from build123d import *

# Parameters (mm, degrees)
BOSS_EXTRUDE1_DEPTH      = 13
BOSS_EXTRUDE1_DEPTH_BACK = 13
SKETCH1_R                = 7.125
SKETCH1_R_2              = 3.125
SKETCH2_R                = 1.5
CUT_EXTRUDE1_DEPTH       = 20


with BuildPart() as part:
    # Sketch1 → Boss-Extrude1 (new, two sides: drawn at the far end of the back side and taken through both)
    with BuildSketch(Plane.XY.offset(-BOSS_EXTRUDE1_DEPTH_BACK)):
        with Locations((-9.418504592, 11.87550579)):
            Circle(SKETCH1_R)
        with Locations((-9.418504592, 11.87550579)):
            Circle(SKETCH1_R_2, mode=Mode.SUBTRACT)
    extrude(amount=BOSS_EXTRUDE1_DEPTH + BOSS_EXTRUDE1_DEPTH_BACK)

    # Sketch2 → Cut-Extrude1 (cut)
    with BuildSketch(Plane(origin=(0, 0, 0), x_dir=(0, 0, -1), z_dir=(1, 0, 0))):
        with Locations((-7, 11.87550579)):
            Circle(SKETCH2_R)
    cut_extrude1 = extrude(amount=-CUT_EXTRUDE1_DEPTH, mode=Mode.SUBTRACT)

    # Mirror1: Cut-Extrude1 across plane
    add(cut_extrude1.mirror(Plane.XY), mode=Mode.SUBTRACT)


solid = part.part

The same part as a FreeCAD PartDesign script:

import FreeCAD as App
import Part
import Sketcher

doc = App.newDocument("Part")
body = doc.addObject("PartDesign::Body", "Body")

sketch1 = body.newObject("Sketcher::SketchObject", "Sketch")
sketch1.AttachmentSupport = (doc.getObject("XY_Plane"), [""])
sketch1.MapMode = "FlatFace"
sketch1.addGeometry([
    Part.Circle(App.Vector(-9.418505, 11.875506, 0), App.Vector(0, 0, 1), 7.125),
    Part.Circle(App.Vector(-9.418505, 11.875506, 0), App.Vector(0, 0, 1), 3.125),
], False)
sketch1.addConstraint([
    Sketcher.Constraint("Coincident", 1, 3, 0, 3),
    Sketcher.Constraint("Diameter", 0, 14.25),
    Sketcher.Constraint("Diameter", 1, 6.25),
    Sketcher.Constraint("DistanceX", 0, 3, -1, 1, 9.418505),
    Sketcher.Constraint("DistanceY", -1, 1, 0, 3, 11.875506),
])
pad1 = body.newObject("PartDesign::Pad", "Pad")
pad1.Profile = sketch1
pad1.Type = "TwoLengths"
pad1.Length = 13
pad1.Length2 = 13

sketch2 = body.newObject("Sketcher::SketchObject", "Sketch001")
sketch2.AttachmentSupport = (doc.getObject("YZ_Plane"), [""])
sketch2.MapMode = "FlatFace"
sketch2.addGeometry(Part.Circle(App.Vector(11.875506, 7, 0), App.Vector(0, 0, 1), 1.5), False)
sketch2.addConstraint([
    Sketcher.Constraint("Diameter", 0, 3.0),
    Sketcher.Constraint("DistanceY", -1, 1, 0, 3, 7.0),
    Sketcher.Constraint("DistanceX", -1, 1, 0, 3, 11.875506),
])
pocket1 = body.newObject("PartDesign::Pocket", "Pocket")
pocket1.Profile = sketch2
pocket1.Length = 20
doc.recompute()

mirrored = body.newObject("PartDesign::Mirrored", "Mirrored")
mirrored.Originals = [pocket1]
mirrored.MirrorPlane = (doc.getObject("XY_Plane"), [""])
body.Tip = mirrored

doc.recompute()
